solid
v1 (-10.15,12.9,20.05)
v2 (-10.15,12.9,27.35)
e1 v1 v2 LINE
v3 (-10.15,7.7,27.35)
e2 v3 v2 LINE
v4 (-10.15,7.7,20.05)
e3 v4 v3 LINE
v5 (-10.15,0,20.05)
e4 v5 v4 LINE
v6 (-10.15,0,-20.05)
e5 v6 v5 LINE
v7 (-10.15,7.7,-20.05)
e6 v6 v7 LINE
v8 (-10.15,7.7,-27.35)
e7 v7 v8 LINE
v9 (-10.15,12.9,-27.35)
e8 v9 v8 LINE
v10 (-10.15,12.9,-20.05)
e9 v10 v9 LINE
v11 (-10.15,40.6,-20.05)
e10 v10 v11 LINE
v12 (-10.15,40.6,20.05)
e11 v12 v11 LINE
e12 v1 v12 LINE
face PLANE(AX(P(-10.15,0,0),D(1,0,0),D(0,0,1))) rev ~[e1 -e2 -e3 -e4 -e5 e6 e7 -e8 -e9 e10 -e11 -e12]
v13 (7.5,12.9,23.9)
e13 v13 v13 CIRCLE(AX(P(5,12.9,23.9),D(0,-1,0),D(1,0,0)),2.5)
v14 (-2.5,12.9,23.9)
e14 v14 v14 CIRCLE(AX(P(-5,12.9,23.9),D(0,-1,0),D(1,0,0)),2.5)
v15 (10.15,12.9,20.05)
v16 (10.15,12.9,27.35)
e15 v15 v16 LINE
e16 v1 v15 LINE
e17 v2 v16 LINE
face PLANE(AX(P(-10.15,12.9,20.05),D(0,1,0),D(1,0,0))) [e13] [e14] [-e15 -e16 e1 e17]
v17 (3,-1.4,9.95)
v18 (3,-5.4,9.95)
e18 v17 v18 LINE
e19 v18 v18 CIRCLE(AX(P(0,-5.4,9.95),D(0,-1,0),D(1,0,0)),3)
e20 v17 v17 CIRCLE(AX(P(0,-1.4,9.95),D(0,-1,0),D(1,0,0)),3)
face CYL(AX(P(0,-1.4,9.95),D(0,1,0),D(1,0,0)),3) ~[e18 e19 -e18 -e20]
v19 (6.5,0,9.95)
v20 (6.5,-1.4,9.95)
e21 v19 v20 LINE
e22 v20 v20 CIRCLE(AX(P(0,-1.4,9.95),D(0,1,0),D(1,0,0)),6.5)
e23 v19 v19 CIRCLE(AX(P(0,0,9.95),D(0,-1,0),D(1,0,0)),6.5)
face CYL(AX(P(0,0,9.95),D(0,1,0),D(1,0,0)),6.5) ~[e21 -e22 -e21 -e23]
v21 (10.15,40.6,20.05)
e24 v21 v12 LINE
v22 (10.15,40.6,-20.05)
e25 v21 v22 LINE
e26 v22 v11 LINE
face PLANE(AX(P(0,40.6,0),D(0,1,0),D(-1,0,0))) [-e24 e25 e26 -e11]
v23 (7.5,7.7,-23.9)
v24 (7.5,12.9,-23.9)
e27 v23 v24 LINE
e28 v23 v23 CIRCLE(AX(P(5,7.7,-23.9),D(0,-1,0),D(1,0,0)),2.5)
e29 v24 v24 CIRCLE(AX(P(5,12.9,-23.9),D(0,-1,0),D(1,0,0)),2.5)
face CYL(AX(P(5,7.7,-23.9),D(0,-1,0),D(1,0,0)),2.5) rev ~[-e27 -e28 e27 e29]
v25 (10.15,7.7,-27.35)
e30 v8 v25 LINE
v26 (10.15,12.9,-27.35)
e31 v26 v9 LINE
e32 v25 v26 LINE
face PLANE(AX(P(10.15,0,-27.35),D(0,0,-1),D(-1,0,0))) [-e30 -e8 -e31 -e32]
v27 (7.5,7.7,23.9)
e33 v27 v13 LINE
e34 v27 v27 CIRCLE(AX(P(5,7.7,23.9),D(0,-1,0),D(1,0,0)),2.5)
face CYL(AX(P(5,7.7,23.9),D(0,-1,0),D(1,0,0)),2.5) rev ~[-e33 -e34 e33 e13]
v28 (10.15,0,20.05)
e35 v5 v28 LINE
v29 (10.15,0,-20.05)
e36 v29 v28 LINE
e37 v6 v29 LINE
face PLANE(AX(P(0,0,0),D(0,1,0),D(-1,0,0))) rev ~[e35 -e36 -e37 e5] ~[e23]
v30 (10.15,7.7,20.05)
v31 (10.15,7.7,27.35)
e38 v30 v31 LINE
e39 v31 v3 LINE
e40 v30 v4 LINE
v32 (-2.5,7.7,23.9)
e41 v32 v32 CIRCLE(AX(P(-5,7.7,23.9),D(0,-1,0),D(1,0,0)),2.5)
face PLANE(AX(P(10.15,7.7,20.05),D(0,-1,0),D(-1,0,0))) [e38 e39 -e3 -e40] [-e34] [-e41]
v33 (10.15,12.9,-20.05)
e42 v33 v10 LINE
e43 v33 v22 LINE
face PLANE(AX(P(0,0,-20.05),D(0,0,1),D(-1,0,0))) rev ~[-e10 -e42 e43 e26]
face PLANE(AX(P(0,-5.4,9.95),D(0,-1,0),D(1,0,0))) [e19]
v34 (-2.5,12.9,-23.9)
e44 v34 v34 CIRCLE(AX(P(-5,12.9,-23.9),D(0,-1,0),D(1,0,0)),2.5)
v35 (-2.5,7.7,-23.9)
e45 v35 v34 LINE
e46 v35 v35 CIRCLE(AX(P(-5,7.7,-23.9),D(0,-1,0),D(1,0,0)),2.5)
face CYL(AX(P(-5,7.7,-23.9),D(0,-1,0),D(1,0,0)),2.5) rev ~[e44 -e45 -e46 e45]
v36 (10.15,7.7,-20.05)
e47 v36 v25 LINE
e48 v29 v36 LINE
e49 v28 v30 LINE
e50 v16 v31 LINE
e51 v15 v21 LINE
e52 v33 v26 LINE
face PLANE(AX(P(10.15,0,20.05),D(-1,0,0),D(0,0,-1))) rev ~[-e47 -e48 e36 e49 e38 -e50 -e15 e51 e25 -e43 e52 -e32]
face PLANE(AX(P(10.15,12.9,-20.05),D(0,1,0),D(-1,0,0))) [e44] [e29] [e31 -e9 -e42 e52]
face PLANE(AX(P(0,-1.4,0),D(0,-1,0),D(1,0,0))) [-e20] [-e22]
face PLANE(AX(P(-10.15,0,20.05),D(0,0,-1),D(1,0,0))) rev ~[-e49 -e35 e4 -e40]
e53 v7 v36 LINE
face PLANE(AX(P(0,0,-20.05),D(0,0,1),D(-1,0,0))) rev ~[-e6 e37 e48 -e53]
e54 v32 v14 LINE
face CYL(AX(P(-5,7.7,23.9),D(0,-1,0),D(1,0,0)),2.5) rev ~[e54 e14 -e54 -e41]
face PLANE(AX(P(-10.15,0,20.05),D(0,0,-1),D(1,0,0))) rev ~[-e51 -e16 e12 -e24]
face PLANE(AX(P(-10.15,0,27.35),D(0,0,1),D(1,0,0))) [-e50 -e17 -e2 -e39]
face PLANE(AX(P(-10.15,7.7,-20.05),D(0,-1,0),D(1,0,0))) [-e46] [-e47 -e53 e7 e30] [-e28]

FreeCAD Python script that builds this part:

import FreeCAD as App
import Part
import Sketcher

V = App.Vector

doc = App.newDocument("Part")
body = doc.addObject("PartDesign::Body", "Body")

sketch1 = doc.addObject("Sketcher::SketchObject", "Sketch")
body.addObject(sketch1)
sketch1.AttachmentSupport = (doc.XZ_Plane, [""])
sketch1.MapMode = "FlatFace"
sketch1.addGeometry(Part.LineSegment(V(-10.15, 20.05, 0), V(10.15, 20.05, 0)), False)
sketch1.addGeometry(Part.LineSegment(V(10.15, 20.05, 0), V(10.15, -20.05, 0)), False)
sketch1.addGeometry(Part.LineSegment(V(10.15, -20.05, 0), V(-10.15, -20.05, 0)), False)
sketch1.addGeometry(Part.LineSegment(V(-10.15, -20.05, 0), V(-10.15, 20.05, 0)), False)
sketch1.addConstraint(Sketcher.Constraint("Coincident", 0, 2, 1, 1))
sketch1.addConstraint(Sketcher.Constraint("Coincident", 1, 2, 2, 1))
sketch1.addConstraint(Sketcher.Constraint("Coincident", 2, 2, 3, 1))
sketch1.addConstraint(Sketcher.Constraint("Coincident", 3, 2, 0, 1))
sketch1.addConstraint(Sketcher.Constraint("Horizontal", 0))
sketch1.addConstraint(Sketcher.Constraint("Vertical", 1))
sketch1.addConstraint(Sketcher.Constraint("Horizontal", 2))
sketch1.addConstraint(Sketcher.Constraint("Vertical", 3))
sketch1.addConstraint(Sketcher.Constraint("Symmetric", 0, 2, 2, 2, -1, 1))
sketch1.addConstraint(Sketcher.Constraint("DistanceX", 0, 1, 0, 2, 20.3))
sketch1.addConstraint(Sketcher.Constraint("DistanceY", 1, 2, 1, 1, 40.1))
pad1 = doc.addObject("PartDesign::Pad", "Pad")
body.addObject(pad1)
pad1.Profile = sketch1
pad1.Length = 40.6
pad1.Reversed = True

sketch2 = doc.addObject("Sketcher::SketchObject", "Sketch001")
body.addObject(sketch2)
sketch2.AttachmentSupport = (doc.XZ_Plane, [""])
sketch2.MapMode = "FlatFace"
sketch2.addGeometry(Part.Circle(V(0, 9.95, 0), V(0, 0, 1), 6.5), False)
sketch2.addConstraint(Sketcher.Constraint("PointOnObject", 0, 3, -2))
sketch2.addConstraint(Sketcher.Constraint("Diameter", 0, 13.0))
sketch2.addConstraint(Sketcher.Constraint("DistanceY", -1, 1, 0, 3, 9.95))
pad2 = doc.addObject("PartDesign::Pad", "Pad001")
body.addObject(pad2)
pad2.Profile = sketch2
pad2.Length = 1.4

sketch3 = doc.addObject("Sketcher::SketchObject", "Sketch002")
body.addObject(sketch3)
sketch3.AttachmentSupport = (doc.XZ_Plane, [""])
sketch3.MapMode = "FlatFace"
sketch3.AttachmentOffset = App.Placement(V(0, 0, 1.4), App.Rotation())
sketch3.addGeometry(Part.Circle(V(0, 9.95, 0), V(0, 0, 1), 3), False)
sketch3.addConstraint(Sketcher.Constraint("PointOnObject", 0, 3, -2))
sketch3.addConstraint(Sketcher.Constraint("Diameter", 0, 6.0))
sketch3.addConstraint(Sketcher.Constraint("DistanceY", -1, 1, 0, 3, 9.95))
pad3 = doc.addObject("PartDesign::Pad", "Pad002")
body.addObject(pad3)
pad3.Profile = sketch3
pad3.Length = 4

sketch4 = doc.addObject("Sketcher::SketchObject", "Sketch003")
body.addObject(sketch4)
sketch4.AttachmentSupport = (doc.XY_Plane, [""])
sketch4.MapMode = "FlatFace"
sketch4.AttachmentOffset = App.Placement(V(0, 0, 20.05), App.Rotation())
sketch4.addGeometry(Part.LineSegment(V(-10.15, 7.7, 0), V(10.15, 7.7, 0)), False)
sketch4.addGeometry(Part.LineSegment(V(10.15, 7.7, 0), V(10.15, 12.9, 0)), False)
sketch4.addGeometry(Part.LineSegment(V(10.15, 12.9, 0), V(-10.15, 12.9, 0)), False)
sketch4.addGeometry(Part.LineSegment(V(-10.15, 12.9, 0), V(-10.15, 7.7, 0)), False)
sketch4.addConstraint(Sketcher.Constraint("Coincident", 0, 2, 1, 1))
sketch4.addConstraint(Sketcher.Constraint("Coincident", 1, 2, 2, 1))
sketch4.addConstraint(Sketcher.Constraint("Coincident", 2, 2, 3, 1))
sketch4.addConstraint(Sketcher.Constraint("Coincident", 3, 2, 0, 1))
sketch4.addConstraint(Sketcher.Constraint("Horizontal", 0))
sketch4.addConstraint(Sketcher.Constraint("Vertical", 1))
sketch4.addConstraint(Sketcher.Constraint("Horizontal", 2))
sketch4.addConstraint(Sketcher.Constraint("Vertical", 3))
sketch4.addConstraint(Sketcher.Constraint("DistanceY", 1, 1, 1, 2, 5.2))
sketch4.addConstraint(Sketcher.Constraint("DistanceY", -1, 1, 0, 2, 7.7))
sketch4.addConstraint(Sketcher.Constraint("DistanceX", 0, 1, 0, 2, 20.3))
sketch4.addConstraint(Sketcher.Constraint("DistanceX", -1, 1, 0, 2, 10.15))
pad4 = doc.addObject("PartDesign::Pad", "Pad003")
body.addObject(pad4)
pad4.Profile = sketch4
pad4.Length = 7.3

sketch5 = doc.addObject("Sketcher::SketchObject", "Sketch004")
body.addObject(sketch5)
sketch5.AttachmentSupport = (doc.XY_Plane, [""])
sketch5.MapMode = "FlatFace"
sketch5.AttachmentOffset = App.Placement(V(0, 0, -20.05), App.Rotation())
sketch5.addGeometry(Part.LineSegment(V(10.15, 7.7, 0), V(-10.15, 7.7, 0)), False)
sketch5.addGeometry(Part.LineSegment(V(-10.15, 7.7, 0), V(-10.15, 12.9, 0)), False)
sketch5.addGeometry(Part.LineSegment(V(-10.15, 12.9, 0), V(10.15, 12.9, 0)), False)
sketch5.addGeometry(Part.LineSegment(V(10.15, 12.9, 0), V(10.15, 7.7, 0)), False)
sketch5.addConstraint(Sketcher.Constraint("Coincident", 0, 2, 1, 1))
sketch5.addConstraint(Sketcher.Constraint("Coincident", 1, 2, 2, 1))
sketch5.addConstraint(Sketcher.Constraint("Coincident", 2, 2, 3, 1))
sketch5.addConstraint(Sketcher.Constraint("Coincident", 3, 2, 0, 1))
sketch5.addConstraint(Sketcher.Constraint("Horizontal", 0))
sketch5.addConstraint(Sketcher.Constraint("Vertical", 1))
sketch5.addConstraint(Sketcher.Constraint("Horizontal", 2))
sketch5.addConstraint(Sketcher.Constraint("Vertical", 3))
sketch5.addConstraint(Sketcher.Constraint("DistanceY", 1, 1, 1, 2, 5.2))
sketch5.addConstraint(Sketcher.Constraint("DistanceY", -1, 1, 0, 2, 7.7))
sketch5.addConstraint(Sketcher.Constraint("DistanceX", 0, 2, 0, 1, 20.3))
sketch5.addConstraint(Sketcher.Constraint("DistanceX", 0, 2, -1, 1, 10.15))
pad5 = doc.addObject("PartDesign::Pad", "Pad004")
body.addObject(pad5)
pad5.Profile = sketch5
pad5.Length = 7.3
pad5.Reversed = True

sketch6 = doc.addObject("Sketcher::SketchObject", "Sketch005")
body.addObject(sketch6)
sketch6.AttachmentSupport = (doc.XZ_Plane, [""])
sketch6.MapMode = "FlatFace"
sketch6.AttachmentOffset = App.Placement(V(0, 0, -7.7), App.Rotation())
sketch6.addGeometry(Part.Circle(V(5, 23.9, 0), V(0, 0, 1), 2.5), False)
sketch6.addGeometry(Part.Circle(V(-5, 23.9, 0), V(0, 0, 1), 2.5), False)
sketch6.addGeometry(Part.Circle(V(5, -23.9, 0), V(0, 0, 1), 2.5), False)
sketch6.addGeometry(Part.Circle(V(-5, -23.9, 0), V(0, 0, 1), 2.5), False)
sketch6.addConstraint(Sketcher.Constraint("Equal", 0, 1))
sketch6.addConstraint(Sketcher.Constraint("Equal", 1, 2))
sketch6.addConstraint(Sketcher.Constraint("Equal", 2, 3))
sketch6.addConstraint(Sketcher.Constraint("Symmetric", 1, 3, 2, 3, -1, 1))
sketch6.addConstraint(Sketcher.Constraint("Symmetric", 0, 3, 3, 3, -1, 1))
sketch6.addConstraint(Sketcher.Constraint("Symmetric", 0, 3, 1, 3, -2))
sketch6.addConstraint(Sketcher.Constraint("Diameter", 0, 5.0))
sketch6.addConstraint(Sketcher.Constraint("DistanceX", -1, 1, 0, 3, 5.0))
sketch6.addConstraint(Sketcher.Constraint("DistanceY", 2, 3, 0, 3, 47.8))
pocket1 = doc.addObject("PartDesign::Pocket", "Pocket")
body.addObject(pocket1)
pocket1.Profile = sketch6
pocket1.Length = 7.3

doc.recompute()
